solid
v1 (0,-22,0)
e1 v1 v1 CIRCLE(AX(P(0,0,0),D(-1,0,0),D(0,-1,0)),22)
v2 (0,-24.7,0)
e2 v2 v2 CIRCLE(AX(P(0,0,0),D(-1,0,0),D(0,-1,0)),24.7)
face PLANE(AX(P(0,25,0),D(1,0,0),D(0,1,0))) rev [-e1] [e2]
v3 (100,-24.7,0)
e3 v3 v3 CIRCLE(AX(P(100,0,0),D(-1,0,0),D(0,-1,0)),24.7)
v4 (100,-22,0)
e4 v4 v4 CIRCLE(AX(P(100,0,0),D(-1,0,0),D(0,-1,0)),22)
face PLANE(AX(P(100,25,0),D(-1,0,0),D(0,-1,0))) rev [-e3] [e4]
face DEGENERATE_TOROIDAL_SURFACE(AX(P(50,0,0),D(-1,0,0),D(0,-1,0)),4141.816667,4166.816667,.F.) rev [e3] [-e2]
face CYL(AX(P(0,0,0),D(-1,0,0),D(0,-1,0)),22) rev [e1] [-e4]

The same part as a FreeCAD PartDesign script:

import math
import FreeCAD as App
import Part
import Sketcher
from FreeCAD import Vector
Q = App.Units.Quantity


def add_polygon(sketch, points):
    """Adds a closed chain of lines whose ends are joined by coincident constraints."""
    first, n = sketch.GeometryCount, len(points)
    for a, b in zip(points, points[1:] + points[:1]):
        sketch.addGeometry(Part.LineSegment(App.Vector(*a, 0), App.Vector(*b, 0)), False)
    for i in range(n):
        sketch.addConstraint(Sketcher.Constraint("Coincident", first + i, 2, first + (i + 1) % n, 1))

doc = App.newDocument("Part")
body = doc.addObject("PartDesign::Body", "Body")

# Sketch on XY plane
sketch1 = body.newObject("Sketcher::SketchObject", "Sketch")
sketch1.AttachmentSupport = (doc.getObject("XY_Plane"), [""])
sketch1.MapMode = "FlatFace"
add_polygon(sketch1, [(0, 25), (0, 22), (100, 22), (100, 25)])  # lines 0-3
sketch1.addConstraint(Sketcher.Constraint("Vertical", 0))
sketch1.addConstraint(Sketcher.Constraint("Horizontal", 1))
sketch1.addConstraint(Sketcher.Constraint("Vertical", 2))
sketch1.addConstraint(Sketcher.Constraint("Horizontal", 3))
sketch1.addConstraint(Sketcher.Constraint("PointOnObject", 0, 2, -2))
sketch1.addConstraint(Sketcher.Constraint("DistanceX", 1, 1, 1, 2, Q("100 mm")))
sketch1.addConstraint(Sketcher.Constraint("DistanceY", 0, 2, 0, 1, Q("3 mm")))
sketch1.addConstraint(Sketcher.Constraint("DistanceY", -1, 1, 0, 2, Q("22 mm")))
revolution = body.newObject("PartDesign::Revolution", "Revolution")
revolution.Profile = sketch1
revolution.ReferenceAxis = (sketch1, ["H_Axis"])
revolution.Angle = 360

# Sketch on XY plane
sketch2 = body.newObject("Sketcher::SketchObject", "Sketch001")
sketch2.AttachmentSupport = (doc.getObject("XY_Plane"), [""])
sketch2.MapMode = "FlatFace"
sketch2.addGeometry(Part.ArcOfCircle(Part.Circle(Vector(50, -4141.8, 0), Vector(0, 0, 1), 4166.8), math.radians(89.31), math.radians(90.69)), False)
sketch2.addGeometry(Part.LineSegment(Vector(100, 24.7, 0), Vector(100, 25.3, 0)), False)
sketch2.addGeometry(Part.LineSegment(Vector(100, 25.3, 0), Vector(0, 25.3, 0)), False)
sketch2.addGeometry(Part.LineSegment(Vector(0, 25.3, 0), Vector(0, 24.7, 0)), False)
sketch2.addConstraint(Sketcher.Constraint("Coincident", 0, 1, 1, 1))
sketch2.addConstraint(Sketcher.Constraint("Coincident", 1, 2, 2, 1))
sketch2.addConstraint(Sketcher.Constraint("Coincident", 2, 2, 3, 1))
sketch2.addConstraint(Sketcher.Constraint("Coincident", 3, 2, 0, 2))
sketch2.addConstraint(Sketcher.Constraint("Vertical", 1))
sketch2.addConstraint(Sketcher.Constraint("Horizontal", 2))
sketch2.addConstraint(Sketcher.Constraint("Vertical", 3))
sketch2.addConstraint(Sketcher.Constraint("PointOnObject", 2, 2, -2))
sketch2.addConstraint(Sketcher.Constraint("Equal", 1, 3))
sketch2.addConstraint(Sketcher.Constraint("DistanceX", 2, 2, 2, 1, Q("100 mm")))
sketch2.addConstraint(Sketcher.Constraint("DistanceY", 1, 1, 1, 2, Q("0.6 mm")))
sketch2.addConstraint(Sketcher.Constraint("DistanceY", -1, 1, 0, 1, Q("24.7 mm")))
sketch2.addConstraint(Sketcher.Constraint("Radius", 0, Q("4166.816667 mm")))
groove = body.newObject("PartDesign::Groove", "Groove")
groove.Profile = sketch2
groove.ReferenceAxis = (sketch2, ["H_Axis"])
groove.Angle = 360

doc.recompute()
